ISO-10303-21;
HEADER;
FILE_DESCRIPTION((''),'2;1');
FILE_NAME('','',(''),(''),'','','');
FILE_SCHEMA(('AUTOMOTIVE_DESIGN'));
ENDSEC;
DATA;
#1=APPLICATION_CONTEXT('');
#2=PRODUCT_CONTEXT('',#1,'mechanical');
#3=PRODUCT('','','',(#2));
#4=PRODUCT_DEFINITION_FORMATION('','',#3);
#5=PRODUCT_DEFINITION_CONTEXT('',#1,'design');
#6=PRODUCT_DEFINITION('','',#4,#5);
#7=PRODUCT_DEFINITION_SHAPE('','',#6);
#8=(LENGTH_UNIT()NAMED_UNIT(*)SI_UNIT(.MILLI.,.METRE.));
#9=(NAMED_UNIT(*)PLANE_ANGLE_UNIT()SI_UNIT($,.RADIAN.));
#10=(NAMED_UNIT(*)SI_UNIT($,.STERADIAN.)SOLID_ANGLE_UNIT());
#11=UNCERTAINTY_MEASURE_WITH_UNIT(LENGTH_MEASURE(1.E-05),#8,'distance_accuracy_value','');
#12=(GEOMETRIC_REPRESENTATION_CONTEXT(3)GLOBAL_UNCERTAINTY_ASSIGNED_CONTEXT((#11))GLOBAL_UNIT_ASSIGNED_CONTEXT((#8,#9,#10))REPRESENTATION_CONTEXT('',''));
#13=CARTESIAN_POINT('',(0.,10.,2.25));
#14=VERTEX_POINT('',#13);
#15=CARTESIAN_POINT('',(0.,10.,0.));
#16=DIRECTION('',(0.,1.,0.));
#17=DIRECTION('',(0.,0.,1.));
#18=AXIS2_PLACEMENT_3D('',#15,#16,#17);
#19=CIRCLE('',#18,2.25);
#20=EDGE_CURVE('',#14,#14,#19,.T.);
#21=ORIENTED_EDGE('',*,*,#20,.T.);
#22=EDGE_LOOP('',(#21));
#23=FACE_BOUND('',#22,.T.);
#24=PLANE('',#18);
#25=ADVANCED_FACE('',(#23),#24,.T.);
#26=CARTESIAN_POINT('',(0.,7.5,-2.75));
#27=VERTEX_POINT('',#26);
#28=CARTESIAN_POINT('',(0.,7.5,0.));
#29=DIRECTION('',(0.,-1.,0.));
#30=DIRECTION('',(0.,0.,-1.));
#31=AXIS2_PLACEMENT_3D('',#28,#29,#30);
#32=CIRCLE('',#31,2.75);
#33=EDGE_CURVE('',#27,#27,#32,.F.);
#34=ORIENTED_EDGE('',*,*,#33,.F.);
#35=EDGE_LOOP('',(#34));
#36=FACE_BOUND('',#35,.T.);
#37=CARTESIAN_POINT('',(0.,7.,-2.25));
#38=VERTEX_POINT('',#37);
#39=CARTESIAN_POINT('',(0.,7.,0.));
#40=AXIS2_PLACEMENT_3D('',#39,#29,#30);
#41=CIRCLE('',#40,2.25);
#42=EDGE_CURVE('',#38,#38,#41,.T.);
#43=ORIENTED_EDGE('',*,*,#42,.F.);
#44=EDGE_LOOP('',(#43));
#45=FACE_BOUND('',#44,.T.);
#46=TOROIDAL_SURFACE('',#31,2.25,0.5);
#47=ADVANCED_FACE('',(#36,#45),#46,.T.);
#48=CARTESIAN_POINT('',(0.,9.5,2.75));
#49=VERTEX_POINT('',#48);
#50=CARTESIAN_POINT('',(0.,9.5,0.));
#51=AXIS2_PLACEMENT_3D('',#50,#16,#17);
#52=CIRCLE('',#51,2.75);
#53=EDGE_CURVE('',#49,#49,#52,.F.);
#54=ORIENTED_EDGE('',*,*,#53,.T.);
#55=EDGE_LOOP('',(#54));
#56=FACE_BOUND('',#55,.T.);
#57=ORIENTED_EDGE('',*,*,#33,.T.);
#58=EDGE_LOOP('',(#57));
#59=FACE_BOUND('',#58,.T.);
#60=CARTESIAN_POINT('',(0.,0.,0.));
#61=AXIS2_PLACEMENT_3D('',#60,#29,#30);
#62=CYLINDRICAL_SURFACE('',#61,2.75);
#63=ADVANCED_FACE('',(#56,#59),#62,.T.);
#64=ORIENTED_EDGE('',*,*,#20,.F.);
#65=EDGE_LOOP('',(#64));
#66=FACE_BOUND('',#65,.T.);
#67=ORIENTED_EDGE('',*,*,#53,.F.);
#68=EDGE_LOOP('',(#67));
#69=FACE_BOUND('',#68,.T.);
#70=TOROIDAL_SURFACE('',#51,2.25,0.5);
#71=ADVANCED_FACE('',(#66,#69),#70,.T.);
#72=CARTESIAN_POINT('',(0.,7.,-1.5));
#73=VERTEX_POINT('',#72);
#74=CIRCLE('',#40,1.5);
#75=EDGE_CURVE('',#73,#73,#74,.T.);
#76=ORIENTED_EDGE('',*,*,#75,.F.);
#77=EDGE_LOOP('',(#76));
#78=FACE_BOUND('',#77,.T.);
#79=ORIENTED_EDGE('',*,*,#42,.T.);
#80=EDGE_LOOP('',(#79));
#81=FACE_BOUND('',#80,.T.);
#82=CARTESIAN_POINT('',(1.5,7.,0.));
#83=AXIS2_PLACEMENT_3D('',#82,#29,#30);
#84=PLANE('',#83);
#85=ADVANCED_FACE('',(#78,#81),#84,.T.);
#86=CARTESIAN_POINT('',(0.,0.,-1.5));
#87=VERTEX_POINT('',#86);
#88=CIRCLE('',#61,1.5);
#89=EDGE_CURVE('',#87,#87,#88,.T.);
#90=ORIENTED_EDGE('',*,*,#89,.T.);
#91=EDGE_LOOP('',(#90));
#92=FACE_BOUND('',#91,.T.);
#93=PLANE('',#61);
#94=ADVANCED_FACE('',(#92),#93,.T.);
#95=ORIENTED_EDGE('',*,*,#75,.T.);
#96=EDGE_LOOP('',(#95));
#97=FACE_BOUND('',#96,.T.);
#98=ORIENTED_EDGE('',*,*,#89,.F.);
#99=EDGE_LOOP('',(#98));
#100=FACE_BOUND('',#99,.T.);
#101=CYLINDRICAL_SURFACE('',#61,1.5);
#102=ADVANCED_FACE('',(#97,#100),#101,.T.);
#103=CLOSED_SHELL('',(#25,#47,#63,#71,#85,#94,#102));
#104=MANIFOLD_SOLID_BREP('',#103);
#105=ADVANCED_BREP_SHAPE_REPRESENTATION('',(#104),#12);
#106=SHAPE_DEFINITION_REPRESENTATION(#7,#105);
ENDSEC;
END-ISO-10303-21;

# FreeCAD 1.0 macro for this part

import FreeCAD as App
import Part
import Sketcher
Q = App.Units.Quantity


def edges_at(feature, points):
    """Names of the edges that pass closest to the given points."""
    edges = feature.Shape.Edges
    near = lambda p: min(range(len(edges)), key=lambda i: edges[i].distToShape(Part.Vertex(*p))[0])
    return sorted({f"Edge{near(p) + 1}" for p in points})

doc = App.newDocument("Part")
body = doc.addObject("PartDesign::Body", "Body")

sketch1 = body.newObject("Sketcher::SketchObject", "Sketch")
sketch1.AttachmentSupport = (doc.getObject("XY_Plane"), [""])
sketch1.MapMode = "FlatFace"
sketch1.addGeometry([
    Part.LineSegment(App.Vector(0, 0, 0), App.Vector(1.5, 0, 0)),
    Part.LineSegment(App.Vector(1.5, 0, 0), App.Vector(1.5, 7, 0)),
    Part.LineSegment(App.Vector(1.5, 7, 0), App.Vector(2.8, 7, 0)),
    Part.LineSegment(App.Vector(2.8, 7, 0), App.Vector(2.8, 10, 0)),
    Part.LineSegment(App.Vector(2.8, 10, 0), App.Vector(0, 10, 0)),
    Part.LineSegment(App.Vector(0, 10, 0), App.Vector(0, 0, 0)),
], False)
sketch1.addConstraint([
    Sketcher.Constraint("Coincident", 0, 2, 1, 1),
    Sketcher.Constraint("Coincident", 1, 2, 2, 1),
    Sketcher.Constraint("Coincident", 2, 2, 3, 1),
    Sketcher.Constraint("Coincident", 3, 2, 4, 1),
    Sketcher.Constraint("Coincident", 4, 2, 5, 1),
    Sketcher.Constraint("Coincident", 5, 2, 0, 1),
    Sketcher.Constraint("Horizontal", 0),
    Sketcher.Constraint("Vertical", 1),
    Sketcher.Constraint("Horizontal", 2),
    Sketcher.Constraint("Vertical", 3),
    Sketcher.Constraint("Horizontal", 4),
    Sketcher.Constraint("Vertical", 5),
    Sketcher.Constraint("Coincident", 5, 2, -1, 1),
    Sketcher.Constraint("DistanceY", 1, 1, 1, 2, Q("7 mm")),
    Sketcher.Constraint("DistanceY", 3, 1, 3, 2, Q("3 mm")),
    Sketcher.Constraint("DistanceX", 0, 1, 0, 2, Q("1.5 mm")),
    Sketcher.Constraint("DistanceX", 2, 1, 2, 2, Q("1.25 mm")),
])
revolution = body.newObject("PartDesign::Revolution", "Revolution")
revolution.Profile = sketch1
revolution.ReferenceAxis = (sketch1, ["V_Axis"])
revolution.Angle = 360
doc.recompute()

fillet = body.newObject("PartDesign::Fillet", "Fillet")
fillet.Base = (revolution, edges_at(revolution, [(0, 7, 2.75), (0, 10, 2.75)]))
fillet.Radius = 0.5

doc.recompute()
